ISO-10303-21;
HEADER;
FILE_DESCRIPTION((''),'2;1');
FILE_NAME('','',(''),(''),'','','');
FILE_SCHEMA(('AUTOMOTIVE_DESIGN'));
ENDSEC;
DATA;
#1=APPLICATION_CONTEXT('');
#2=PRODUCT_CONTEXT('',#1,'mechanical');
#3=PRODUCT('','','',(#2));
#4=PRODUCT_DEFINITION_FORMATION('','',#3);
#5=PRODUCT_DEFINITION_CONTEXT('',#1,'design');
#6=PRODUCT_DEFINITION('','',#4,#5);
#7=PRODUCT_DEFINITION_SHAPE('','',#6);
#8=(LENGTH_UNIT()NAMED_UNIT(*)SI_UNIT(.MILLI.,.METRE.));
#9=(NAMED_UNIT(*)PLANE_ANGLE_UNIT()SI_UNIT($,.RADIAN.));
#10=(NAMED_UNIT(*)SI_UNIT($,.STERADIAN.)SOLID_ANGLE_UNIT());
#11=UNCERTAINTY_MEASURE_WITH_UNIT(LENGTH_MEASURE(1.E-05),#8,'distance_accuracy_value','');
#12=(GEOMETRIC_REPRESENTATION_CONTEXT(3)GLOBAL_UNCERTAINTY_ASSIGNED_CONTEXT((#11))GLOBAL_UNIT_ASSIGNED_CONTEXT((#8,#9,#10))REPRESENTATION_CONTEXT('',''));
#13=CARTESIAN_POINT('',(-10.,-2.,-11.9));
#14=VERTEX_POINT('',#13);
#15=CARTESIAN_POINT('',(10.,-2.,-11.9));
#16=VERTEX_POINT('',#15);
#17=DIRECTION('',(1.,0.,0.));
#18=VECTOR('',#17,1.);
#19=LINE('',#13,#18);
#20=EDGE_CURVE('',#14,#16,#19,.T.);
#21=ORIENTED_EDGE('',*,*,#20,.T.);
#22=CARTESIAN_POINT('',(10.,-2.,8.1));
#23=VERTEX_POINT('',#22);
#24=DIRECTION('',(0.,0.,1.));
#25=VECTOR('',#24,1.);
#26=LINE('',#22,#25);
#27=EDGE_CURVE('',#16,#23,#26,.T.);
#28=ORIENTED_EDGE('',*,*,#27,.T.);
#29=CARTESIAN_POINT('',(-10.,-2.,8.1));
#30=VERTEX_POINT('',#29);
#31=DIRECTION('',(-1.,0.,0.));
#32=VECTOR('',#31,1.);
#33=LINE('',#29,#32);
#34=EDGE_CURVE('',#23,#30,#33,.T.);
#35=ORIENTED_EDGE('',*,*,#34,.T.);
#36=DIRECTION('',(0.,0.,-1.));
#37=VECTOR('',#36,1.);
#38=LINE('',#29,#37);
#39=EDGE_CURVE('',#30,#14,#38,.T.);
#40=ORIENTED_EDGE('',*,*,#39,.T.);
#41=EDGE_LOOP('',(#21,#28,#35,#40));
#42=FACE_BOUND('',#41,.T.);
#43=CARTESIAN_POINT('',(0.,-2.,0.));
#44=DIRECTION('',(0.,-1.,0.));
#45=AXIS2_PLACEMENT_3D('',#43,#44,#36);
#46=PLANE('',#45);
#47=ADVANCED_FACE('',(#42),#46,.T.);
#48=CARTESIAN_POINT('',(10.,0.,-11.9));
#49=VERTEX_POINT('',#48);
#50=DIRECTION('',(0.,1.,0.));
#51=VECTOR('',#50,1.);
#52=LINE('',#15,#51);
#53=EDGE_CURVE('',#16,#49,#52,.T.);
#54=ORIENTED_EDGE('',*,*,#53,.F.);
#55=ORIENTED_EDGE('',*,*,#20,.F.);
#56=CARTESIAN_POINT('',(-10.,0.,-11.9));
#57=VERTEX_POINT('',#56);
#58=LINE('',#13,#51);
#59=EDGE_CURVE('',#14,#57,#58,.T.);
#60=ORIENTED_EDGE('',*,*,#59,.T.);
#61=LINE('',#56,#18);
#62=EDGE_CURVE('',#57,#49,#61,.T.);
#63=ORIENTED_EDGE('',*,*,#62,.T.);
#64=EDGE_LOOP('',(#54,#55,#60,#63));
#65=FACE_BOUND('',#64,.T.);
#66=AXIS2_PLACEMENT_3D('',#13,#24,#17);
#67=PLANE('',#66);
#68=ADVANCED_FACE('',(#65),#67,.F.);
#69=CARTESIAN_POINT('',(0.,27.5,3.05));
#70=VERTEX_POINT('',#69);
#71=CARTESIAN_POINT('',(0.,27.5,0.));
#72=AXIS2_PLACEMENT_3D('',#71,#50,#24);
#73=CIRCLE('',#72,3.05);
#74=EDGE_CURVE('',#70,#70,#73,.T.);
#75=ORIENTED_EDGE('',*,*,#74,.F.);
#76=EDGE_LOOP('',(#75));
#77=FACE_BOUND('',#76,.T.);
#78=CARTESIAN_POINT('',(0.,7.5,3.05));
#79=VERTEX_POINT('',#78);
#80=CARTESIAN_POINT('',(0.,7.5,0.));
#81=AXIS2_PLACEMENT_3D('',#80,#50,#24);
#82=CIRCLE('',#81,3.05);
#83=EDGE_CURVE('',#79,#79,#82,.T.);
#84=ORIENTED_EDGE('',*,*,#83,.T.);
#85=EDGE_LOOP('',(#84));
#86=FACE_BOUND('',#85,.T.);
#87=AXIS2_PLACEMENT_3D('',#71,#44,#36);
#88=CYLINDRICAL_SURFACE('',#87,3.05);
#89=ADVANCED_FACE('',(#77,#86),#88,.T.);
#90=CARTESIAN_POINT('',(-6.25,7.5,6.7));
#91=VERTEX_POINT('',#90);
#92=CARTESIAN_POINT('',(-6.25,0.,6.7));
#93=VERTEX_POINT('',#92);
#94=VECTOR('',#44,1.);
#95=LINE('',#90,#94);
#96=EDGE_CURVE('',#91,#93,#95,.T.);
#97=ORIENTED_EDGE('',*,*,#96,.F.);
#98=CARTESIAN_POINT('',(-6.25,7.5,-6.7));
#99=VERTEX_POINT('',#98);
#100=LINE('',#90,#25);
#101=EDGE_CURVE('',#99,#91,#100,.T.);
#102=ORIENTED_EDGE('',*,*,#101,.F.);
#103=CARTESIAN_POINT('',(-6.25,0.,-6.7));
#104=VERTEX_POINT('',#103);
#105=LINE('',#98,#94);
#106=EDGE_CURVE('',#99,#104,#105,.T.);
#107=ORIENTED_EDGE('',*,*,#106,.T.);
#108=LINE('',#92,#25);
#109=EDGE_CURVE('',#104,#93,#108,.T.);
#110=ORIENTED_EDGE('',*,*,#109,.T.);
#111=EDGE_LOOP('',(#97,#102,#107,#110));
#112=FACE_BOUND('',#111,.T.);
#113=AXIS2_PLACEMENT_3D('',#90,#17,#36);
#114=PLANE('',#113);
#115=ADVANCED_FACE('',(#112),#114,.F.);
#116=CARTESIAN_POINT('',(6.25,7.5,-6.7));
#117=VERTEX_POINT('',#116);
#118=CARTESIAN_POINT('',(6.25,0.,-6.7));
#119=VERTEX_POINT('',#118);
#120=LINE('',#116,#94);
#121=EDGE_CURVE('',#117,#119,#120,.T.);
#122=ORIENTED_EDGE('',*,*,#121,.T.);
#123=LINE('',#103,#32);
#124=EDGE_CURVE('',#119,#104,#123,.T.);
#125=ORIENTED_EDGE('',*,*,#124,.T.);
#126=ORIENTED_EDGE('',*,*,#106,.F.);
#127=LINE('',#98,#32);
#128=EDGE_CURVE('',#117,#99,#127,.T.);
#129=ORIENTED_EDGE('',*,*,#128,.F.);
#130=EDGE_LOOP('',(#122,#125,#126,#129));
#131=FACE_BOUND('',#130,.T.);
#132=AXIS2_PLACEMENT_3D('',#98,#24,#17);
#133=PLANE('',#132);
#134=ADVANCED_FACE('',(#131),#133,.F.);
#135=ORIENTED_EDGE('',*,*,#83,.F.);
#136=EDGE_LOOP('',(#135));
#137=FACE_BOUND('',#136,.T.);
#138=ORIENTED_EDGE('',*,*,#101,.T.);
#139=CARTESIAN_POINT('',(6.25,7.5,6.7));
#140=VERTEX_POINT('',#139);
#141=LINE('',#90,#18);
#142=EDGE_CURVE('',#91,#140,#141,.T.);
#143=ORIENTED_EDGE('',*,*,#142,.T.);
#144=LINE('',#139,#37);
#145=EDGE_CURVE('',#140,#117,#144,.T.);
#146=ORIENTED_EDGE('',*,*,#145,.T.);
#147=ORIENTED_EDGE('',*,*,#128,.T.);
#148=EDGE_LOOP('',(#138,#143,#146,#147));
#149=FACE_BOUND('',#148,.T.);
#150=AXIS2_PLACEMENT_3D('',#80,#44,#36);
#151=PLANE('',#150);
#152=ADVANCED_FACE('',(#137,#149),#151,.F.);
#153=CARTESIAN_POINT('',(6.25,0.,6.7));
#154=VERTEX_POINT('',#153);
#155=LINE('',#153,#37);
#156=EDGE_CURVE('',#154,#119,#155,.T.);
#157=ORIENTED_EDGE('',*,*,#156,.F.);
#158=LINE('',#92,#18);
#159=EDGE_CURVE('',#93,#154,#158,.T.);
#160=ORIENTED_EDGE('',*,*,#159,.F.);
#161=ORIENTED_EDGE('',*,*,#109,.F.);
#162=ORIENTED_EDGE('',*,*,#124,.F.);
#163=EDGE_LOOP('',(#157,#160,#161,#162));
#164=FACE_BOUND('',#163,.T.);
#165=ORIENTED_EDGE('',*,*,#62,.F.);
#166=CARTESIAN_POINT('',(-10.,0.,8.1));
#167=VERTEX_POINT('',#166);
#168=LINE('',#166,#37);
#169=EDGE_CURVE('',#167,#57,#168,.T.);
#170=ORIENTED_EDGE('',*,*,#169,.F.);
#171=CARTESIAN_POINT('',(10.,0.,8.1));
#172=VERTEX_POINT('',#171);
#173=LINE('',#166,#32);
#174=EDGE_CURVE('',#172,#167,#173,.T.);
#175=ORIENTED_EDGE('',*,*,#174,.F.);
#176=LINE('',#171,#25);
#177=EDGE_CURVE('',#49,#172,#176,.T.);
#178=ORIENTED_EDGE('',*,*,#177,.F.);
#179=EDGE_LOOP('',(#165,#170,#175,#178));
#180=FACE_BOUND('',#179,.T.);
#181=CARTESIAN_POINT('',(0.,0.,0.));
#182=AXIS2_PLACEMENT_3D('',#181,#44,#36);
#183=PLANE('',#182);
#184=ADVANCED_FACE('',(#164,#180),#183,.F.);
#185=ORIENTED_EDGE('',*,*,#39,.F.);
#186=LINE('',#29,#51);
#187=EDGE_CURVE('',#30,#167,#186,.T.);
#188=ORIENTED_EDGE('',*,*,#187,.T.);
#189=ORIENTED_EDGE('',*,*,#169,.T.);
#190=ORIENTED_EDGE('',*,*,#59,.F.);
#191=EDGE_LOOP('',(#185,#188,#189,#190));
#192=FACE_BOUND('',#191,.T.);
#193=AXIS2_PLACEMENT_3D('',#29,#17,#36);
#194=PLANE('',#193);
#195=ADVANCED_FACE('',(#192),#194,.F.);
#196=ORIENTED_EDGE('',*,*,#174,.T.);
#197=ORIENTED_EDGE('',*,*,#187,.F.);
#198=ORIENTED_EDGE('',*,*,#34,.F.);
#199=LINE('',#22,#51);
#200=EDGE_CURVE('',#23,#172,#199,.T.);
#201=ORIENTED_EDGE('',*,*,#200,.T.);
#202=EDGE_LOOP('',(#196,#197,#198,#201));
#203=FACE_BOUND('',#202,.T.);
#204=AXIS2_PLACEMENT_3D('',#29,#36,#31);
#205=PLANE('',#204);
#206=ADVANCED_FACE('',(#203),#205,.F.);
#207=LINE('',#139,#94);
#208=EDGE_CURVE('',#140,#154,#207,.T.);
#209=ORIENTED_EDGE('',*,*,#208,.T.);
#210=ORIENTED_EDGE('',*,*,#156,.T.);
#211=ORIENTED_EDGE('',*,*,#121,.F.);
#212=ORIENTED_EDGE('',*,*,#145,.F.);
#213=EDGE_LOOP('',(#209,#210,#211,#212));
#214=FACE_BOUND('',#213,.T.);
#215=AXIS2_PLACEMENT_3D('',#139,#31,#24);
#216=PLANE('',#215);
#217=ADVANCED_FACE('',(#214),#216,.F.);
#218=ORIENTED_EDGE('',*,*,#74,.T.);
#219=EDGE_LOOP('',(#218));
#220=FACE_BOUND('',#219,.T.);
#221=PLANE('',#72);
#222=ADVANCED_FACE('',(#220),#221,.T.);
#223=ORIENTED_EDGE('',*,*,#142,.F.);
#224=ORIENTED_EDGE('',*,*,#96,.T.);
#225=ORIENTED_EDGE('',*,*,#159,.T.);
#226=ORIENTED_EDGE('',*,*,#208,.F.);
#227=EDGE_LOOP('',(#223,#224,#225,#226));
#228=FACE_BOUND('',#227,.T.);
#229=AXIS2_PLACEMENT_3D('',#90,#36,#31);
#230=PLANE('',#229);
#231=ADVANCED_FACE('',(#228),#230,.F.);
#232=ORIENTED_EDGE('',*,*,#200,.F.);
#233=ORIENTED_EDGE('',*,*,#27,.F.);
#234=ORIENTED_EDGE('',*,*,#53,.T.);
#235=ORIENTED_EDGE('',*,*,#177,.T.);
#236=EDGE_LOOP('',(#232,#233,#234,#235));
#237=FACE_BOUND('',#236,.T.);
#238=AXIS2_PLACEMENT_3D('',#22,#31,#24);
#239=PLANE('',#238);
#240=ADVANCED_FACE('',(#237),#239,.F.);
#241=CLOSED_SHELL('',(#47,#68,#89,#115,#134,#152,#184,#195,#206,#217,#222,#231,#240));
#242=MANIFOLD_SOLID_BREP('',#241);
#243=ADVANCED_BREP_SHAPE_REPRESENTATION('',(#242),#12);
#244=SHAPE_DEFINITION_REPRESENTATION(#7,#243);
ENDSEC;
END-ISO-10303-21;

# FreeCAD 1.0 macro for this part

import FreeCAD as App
import Part
import Sketcher

V = App.Vector


def add_polygon(sketch, points):
    """Adds a closed chain of lines whose ends are joined by coincident constraints."""
    first, n = sketch.GeometryCount, len(points)
    for a, b in zip(points, points[1:] + points[:1]):
        sketch.addGeometry(Part.LineSegment(App.Vector(*a, 0), App.Vector(*b, 0)), False)
    for i in range(n):
        sketch.addConstraint(Sketcher.Constraint("Coincident", first + i, 2, first + (i + 1) % n, 1))

doc = App.newDocument("Part")
body = doc.addObject("PartDesign::Body", "Body")

# Sketch on XZ plane
sketch1 = body.newObject("Sketcher::SketchObject", "Sketch")
sketch1.AttachmentSupport = (doc.getObject("XZ_Plane"), [""])
sketch1.MapMode = "FlatFace"
add_polygon(sketch1, [(-6, -7), (-6, 7), (6, 7), (6, -7)])  # lines 0-3
sketch1.addConstraint([
    Sketcher.Constraint("Vertical", 0),
    Sketcher.Constraint("Horizontal", 1),
    Sketcher.Constraint("Vertical", 2),
    Sketcher.Constraint("Horizontal", 3),
    Sketcher.Constraint("Symmetric", 0, 2, 2, 2, -1, 1),
    Sketcher.Constraint("DistanceX", 1, 1, 1, 2, 12.5),
    Sketcher.Constraint("DistanceY", 0, 1, 0, 2, 13.4),
])
pad1 = body.newObject("PartDesign::Pad", "Pad")
pad1.Profile = sketch1
pad1.Length = 7.5
pad1.Reversed = True

# Sketch on XZ plane
sketch2 = body.newObject("Sketcher::SketchObject", "Sketch001")
sketch2.AttachmentSupport = (doc.getObject("XZ_Plane"), [""])
sketch2.MapMode = "FlatFace"
sketch2.AttachmentOffset = App.Placement(V(0, 0, -7.5), App.Rotation())
sketch2.addGeometry(Part.Circle(V(0, 0, 0), V(0, 0, 1), 3), False)
sketch2.addConstraint([
    Sketcher.Constraint("Coincident", 0, 3, -1, 1),
    Sketcher.Constraint("Diameter", 0, 6.1),
])
pad2 = body.newObject("PartDesign::Pad", "Pad001")
pad2.Profile = sketch2
pad2.Length = 20
pad2.Reversed = True

# Sketch on XZ plane
sketch3 = body.newObject("Sketcher::SketchObject", "Sketch002")
sketch3.AttachmentSupport = (doc.getObject("XZ_Plane"), [""])
sketch3.MapMode = "FlatFace"
add_polygon(sketch3, [(-10, 8), (-10, -12), (10, -12), (10, 8)])  # lines 0-3
sketch3.addConstraint([
    Sketcher.Constraint("Vertical", 0),
    Sketcher.Constraint("Horizontal", 1),
    Sketcher.Constraint("Vertical", 2),
    Sketcher.Constraint("Horizontal", 3),
    Sketcher.Constraint("Equal", 3, 0),
    Sketcher.Constraint("DistanceX", 1, 1, 1, 2, 20.0),
    Sketcher.Constraint("DistanceX", 0, 2, -1, 1, 10.0),
    Sketcher.Constraint("DistanceY", 0, 2, -1, 1, 11.9),
])
pad3 = body.newObject("PartDesign::Pad", "Pad002")
pad3.Profile = sketch3
pad3.Length = 2

doc.recompute()
